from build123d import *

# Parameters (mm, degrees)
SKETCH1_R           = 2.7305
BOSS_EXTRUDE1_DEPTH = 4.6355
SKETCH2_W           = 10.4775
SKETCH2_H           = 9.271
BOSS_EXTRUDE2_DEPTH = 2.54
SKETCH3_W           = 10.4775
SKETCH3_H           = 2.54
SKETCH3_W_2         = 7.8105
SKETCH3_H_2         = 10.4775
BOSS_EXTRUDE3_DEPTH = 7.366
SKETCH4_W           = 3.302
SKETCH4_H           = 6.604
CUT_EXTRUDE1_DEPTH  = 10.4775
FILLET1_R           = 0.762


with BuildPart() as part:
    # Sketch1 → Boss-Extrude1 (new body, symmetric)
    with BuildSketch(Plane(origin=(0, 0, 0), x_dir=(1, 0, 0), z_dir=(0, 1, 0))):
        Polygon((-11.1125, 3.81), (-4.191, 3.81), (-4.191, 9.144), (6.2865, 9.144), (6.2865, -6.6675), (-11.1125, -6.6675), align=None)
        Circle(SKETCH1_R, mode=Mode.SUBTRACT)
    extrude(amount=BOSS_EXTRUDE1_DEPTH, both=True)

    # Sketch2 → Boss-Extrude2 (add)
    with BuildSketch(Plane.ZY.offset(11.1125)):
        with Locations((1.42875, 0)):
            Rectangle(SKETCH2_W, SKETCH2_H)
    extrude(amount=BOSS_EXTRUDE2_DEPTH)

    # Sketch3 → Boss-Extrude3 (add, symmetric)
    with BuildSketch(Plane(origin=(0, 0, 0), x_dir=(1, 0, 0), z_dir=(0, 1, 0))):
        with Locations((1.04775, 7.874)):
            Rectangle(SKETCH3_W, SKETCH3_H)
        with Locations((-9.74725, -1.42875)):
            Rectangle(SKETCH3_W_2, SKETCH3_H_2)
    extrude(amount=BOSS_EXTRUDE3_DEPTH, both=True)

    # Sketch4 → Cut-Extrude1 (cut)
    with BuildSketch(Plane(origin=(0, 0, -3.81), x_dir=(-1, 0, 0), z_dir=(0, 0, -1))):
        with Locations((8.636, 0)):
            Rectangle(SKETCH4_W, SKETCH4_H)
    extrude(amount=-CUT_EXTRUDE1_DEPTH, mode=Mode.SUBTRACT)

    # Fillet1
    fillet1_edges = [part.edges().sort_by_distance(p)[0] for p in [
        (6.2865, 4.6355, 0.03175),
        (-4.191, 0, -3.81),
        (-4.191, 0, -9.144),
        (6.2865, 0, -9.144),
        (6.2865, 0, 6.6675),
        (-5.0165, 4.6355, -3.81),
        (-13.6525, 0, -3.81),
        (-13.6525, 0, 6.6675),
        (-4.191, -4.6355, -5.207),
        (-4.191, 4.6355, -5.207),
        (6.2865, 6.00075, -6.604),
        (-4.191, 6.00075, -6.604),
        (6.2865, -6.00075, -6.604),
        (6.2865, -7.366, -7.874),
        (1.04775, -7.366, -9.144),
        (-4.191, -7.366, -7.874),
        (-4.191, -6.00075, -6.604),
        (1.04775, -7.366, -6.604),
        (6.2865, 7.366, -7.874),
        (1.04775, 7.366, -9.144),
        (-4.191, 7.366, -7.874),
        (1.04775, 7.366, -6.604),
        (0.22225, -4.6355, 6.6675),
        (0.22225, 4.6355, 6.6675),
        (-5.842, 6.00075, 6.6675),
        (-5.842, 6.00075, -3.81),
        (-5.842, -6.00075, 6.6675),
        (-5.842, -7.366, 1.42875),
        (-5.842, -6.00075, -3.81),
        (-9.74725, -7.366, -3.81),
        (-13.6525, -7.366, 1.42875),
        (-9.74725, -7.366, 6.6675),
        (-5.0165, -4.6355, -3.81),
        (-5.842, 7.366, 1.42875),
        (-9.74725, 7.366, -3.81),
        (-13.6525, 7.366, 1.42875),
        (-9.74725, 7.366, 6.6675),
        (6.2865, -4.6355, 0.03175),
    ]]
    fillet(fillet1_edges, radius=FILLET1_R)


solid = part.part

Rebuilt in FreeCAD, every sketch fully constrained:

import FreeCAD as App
import Part
import Sketcher
Q = App.Units.Quantity


def edges_at(feature, points):
    """Names of the edges that pass closest to the given points."""
    edges = feature.Shape.Edges
    near = lambda p: min(range(len(edges)), key=lambda i: edges[i].distToShape(Part.Vertex(*p))[0])
    return sorted({f"Edge{near(p) + 1}" for p in points})


def add_polygon(sketch, points):
    """Adds a closed chain of lines whose ends are joined by coincident constraints."""
    first, n = sketch.GeometryCount, len(points)
    for a, b in zip(points, points[1:] + points[:1]):
        sketch.addGeometry(Part.LineSegment(App.Vector(*a, 0), App.Vector(*b, 0)), False)
    for i in range(n):
        sketch.addConstraint(Sketcher.Constraint("Coincident", first + i, 2, first + (i + 1) % n, 1))

doc = App.newDocument("Part")
body = doc.addObject("PartDesign::Body", "Body")

sketch1 = body.newObject("Sketcher::SketchObject", "Sketch")
sketch1.AttachmentSupport = (doc.getObject("XZ_Plane"), [""])
sketch1.MapMode = "FlatFace"
add_polygon(sketch1, [(-4.191, -3.81), (-11.1125, -3.81), (-11.1125, 6.6675), (6.2865, 6.6675), (6.2865, -9.144), (-4.191, -9.144)])
sketch1.addGeometry(Part.Circle(App.Vector(0, 0, 0), App.Vector(0, 0, 1), 2.7305), False)
sketch1.addConstraint([
    Sketcher.Constraint("Horizontal", 0),
    Sketcher.Constraint("Vertical", 1),
    Sketcher.Constraint("Horizontal", 2),
    Sketcher.Constraint("Vertical", 3),
    Sketcher.Constraint("Horizontal", 4),
    Sketcher.Constraint("Vertical", 5),
    Sketcher.Constraint("Coincident", 6, 3, -1, 1),
    Sketcher.Constraint("Equal", 4, 1),
    Sketcher.Constraint("Diameter", 6, Q("0.215 in")),
    Sketcher.Constraint("DistanceY", 5, 1, 5, 2, Q("0.21 in")),
    Sketcher.Constraint("DistanceX", 2, 1, 2, 2, Q("0.685 in")),
    Sketcher.Constraint("DistanceY", 0, 2, -1, 1, Q("0.15 in")),
    Sketcher.Constraint("DistanceX", 0, 2, 0, 1, Q("0.2725 in")),
    Sketcher.Constraint("DistanceX", 0, 2, -1, 1, Q("0.4375 in")),
])
pad1 = body.newObject("PartDesign::Pad", "Pad")
pad1.Profile = sketch1
pad1.Length = Q("0.365 in")
pad1.Midplane = True

sketch2 = body.newObject("Sketcher::SketchObject", "Sketch001")
sketch2.AttachmentSupport = (doc.getObject("YZ_Plane"), [""])
sketch2.MapMode = "FlatFace"
sketch2.AttachmentOffset = App.Placement(App.Vector(0, 0, -0.4375 * 25.4), App.Rotation())
add_polygon(sketch2, [(4.6355, -3.81), (-4.6355, -3.81), (-4.6355, 6.6675), (4.6355, 6.6675)])
sketch2.addConstraint([
    Sketcher.Constraint("Horizontal", 0),
    Sketcher.Constraint("Vertical", 1),
    Sketcher.Constraint("Horizontal", 2),
    Sketcher.Constraint("Vertical", 3),
    Sketcher.Constraint("DistanceX", 0, 2, 0, 1, Q("0.365 in")),
    Sketcher.Constraint("DistanceY", 0, 2, -1, 1, Q("0.15 in")),
    Sketcher.Constraint("DistanceY", 1, 1, 1, 2, Q("0.4125 in")),
    Sketcher.Constraint("DistanceX", 0, 2, -1, 1, Q("0.1825 in")),
])
pad2 = body.newObject("PartDesign::Pad", "Pad001")
pad2.Profile = sketch2
pad2.Length = Q("0.1 in")
pad2.Reversed = True

sketch3 = body.newObject("Sketcher::SketchObject", "Sketch002")
sketch3.AttachmentSupport = (doc.getObject("XZ_Plane"), [""])
sketch3.MapMode = "FlatFace"
add_polygon(sketch3, [(-4.191, -9.144), (-4.191, -6.604), (6.2865, -6.604), (6.2865, -9.144)])
add_polygon(sketch3, [(-13.6525, -3.81), (-13.6525, 6.6675), (-5.842, 6.6675), (-5.842, -3.81)])
sketch3.addConstraint([
    Sketcher.Constraint("Vertical", 0),
    Sketcher.Constraint("Horizontal", 1),
    Sketcher.Constraint("Vertical", 2),
    Sketcher.Constraint("Horizontal", 3),
    Sketcher.Constraint("Vertical", 4),
    Sketcher.Constraint("Horizontal", 5),
    Sketcher.Constraint("Vertical", 6),
    Sketcher.Constraint("Horizontal", 7),
    Sketcher.Constraint("Equal", 3, 4),
    Sketcher.Constraint("DistanceY", 0, 1, 0, 2, Q("0.1 in")),
    Sketcher.Constraint("DistanceY", 0, 2, -1, 1, Q("0.26 in")),
    Sketcher.Constraint("DistanceX", 5, 2, -1, 1, Q("0.23 in")),
    Sketcher.Constraint("DistanceY", 6, 2, -1, 1, Q("0.15 in")),
    Sketcher.Constraint("DistanceX", 1, 1, 1, 2, Q("0.4125 in")),
    Sketcher.Constraint("DistanceX", 5, 1, 5, 2, Q("0.3075 in")),
    Sketcher.Constraint("DistanceX", 0, 2, -1, 1, Q("0.165 in")),
])
pad3 = body.newObject("PartDesign::Pad", "Pad002")
pad3.Profile = sketch3
pad3.Length = Q("0.58 in")
pad3.Midplane = True

sketch4 = body.newObject("Sketcher::SketchObject", "Sketch003")
sketch4.AttachmentSupport = (doc.getObject("XY_Plane"), [""])
sketch4.MapMode = "FlatFace"
sketch4.AttachmentOffset = App.Placement(App.Vector(0, 0, -0.15 * 25.4), App.Rotation())
add_polygon(sketch4, [(-6.985, 3.302), (-6.985, -3.302), (-10.287, -3.302), (-10.287, 3.302)])
sketch4.addConstraint([
    Sketcher.Constraint("Vertical", 0),
    Sketcher.Constraint("Horizontal", 1),
    Sketcher.Constraint("Vertical", 2),
    Sketcher.Constraint("Horizontal", 3),
    Sketcher.Constraint("DistanceX", 1, 2, 1, 1, Q("0.13 in")),
    Sketcher.Constraint("DistanceY", 0, 2, 0, 1, Q("0.26 in")),
    Sketcher.Constraint("DistanceY", 0, 2, -1, 1, Q("0.13 in")),
    Sketcher.Constraint("DistanceX", 0, 2, -1, 1, Q("0.275 in")),
])
pocket1 = body.newObject("PartDesign::Pocket", "Pocket")
pocket1.Profile = sketch4
pocket1.Length = Q("0.4125 in")
pocket1.Reversed = True
doc.recompute()

fillet = body.newObject("PartDesign::Fillet", "Fillet")
fillet.Base = (pocket1, edges_at(pocket1, [
    (6.287, 4.636, 0.032),
    (-4.191, 0, -3.81),
    (-4.191, 0, -9.144),
    (6.287, 0, -9.144),
    (6.287, 0, 6.668),
    (-5.016, 4.636, -3.81),
    (-13.652, 0, -3.81),
    (-13.652, 0, 6.668),
    (-4.191, -4.636, -5.207),
    (-4.191, 4.636, -5.207),
    (6.287, 6.001, -6.604),
    (-4.191, 6.001, -6.604),
    (6.287, -6.001, -6.604),
    (6.287, -7.366, -7.874),
    (1.048, -7.366, -9.144),
    (-4.191, -7.366, -7.874),
    (-4.191, -6.001, -6.604),
    (1.048, -7.366, -6.604),
    (6.287, 7.366, -7.874),
    (1.048, 7.366, -9.144),
    (-4.191, 7.366, -7.874),
    (1.048, 7.366, -6.604),
    (0.222, -4.636, 6.668),
    (0.222, 4.636, 6.668),
    (-5.842, 6.001, 6.668),
    (-5.842, 6.001, -3.81),
    (-5.842, -6.001, 6.668),
    (-5.842, -7.366, 1.429),
    (-5.842, -6.001, -3.81),
    (-9.747, -7.366, -3.81),
    (-13.652, -7.366, 1.429),
    (-9.747, -7.366, 6.668),
    (-5.016, -4.636, -3.81),
    (-5.842, 7.366, 1.429),
    (-9.747, 7.366, -3.81),
    (-13.652, 7.366, 1.429),
    (-9.747, 7.366, 6.668),
    (6.287, -4.636, 0.032),
]))
fillet.Radius = Q("0.03 in")

doc.recompute()
